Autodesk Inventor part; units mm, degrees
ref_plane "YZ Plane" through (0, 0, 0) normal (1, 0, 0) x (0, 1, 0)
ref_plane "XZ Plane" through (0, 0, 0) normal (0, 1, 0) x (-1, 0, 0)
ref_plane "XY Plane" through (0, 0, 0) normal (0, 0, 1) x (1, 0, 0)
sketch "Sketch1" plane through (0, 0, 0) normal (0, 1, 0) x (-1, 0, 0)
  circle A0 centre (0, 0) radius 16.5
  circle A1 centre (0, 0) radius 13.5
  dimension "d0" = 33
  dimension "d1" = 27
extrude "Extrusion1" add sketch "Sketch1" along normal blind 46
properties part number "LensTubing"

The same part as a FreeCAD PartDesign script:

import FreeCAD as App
import Part
import Sketcher
from FreeCAD import Vector
Q = App.Units.Quantity

doc = App.newDocument("Part")
body = doc.addObject("PartDesign::Body", "Body")

# Sketch on XZ plane
sketch1 = doc.addObject("Sketcher::SketchObject", "Sketch")
body.addObject(sketch1)
sketch1.AttachmentSupport = (doc.XZ_Plane, [""])
sketch1.MapMode = "FlatFace"
sketch1.addGeometry(Part.Circle(Vector(0, 0, 0), Vector(0, 0, 1), 16), False)
sketch1.addGeometry(Part.Circle(Vector(0, 0, 0), Vector(0, 0, 1), 14), False)
sketch1.addConstraint(Sketcher.Constraint("Coincident", 0, 3, -1, 1))
sketch1.addConstraint(Sketcher.Constraint("Coincident", 1, 3, -1, 1))
sketch1.addConstraint(Sketcher.Constraint("Diameter", 0, Q("33 mm")))
sketch1.addConstraint(Sketcher.Constraint("Diameter", 1, Q("27 mm")))
pad1 = doc.addObject("PartDesign::Pad", "Pad")
body.addObject(pad1)
pad1.Profile = sketch1
pad1.Length = 46
pad1.Reversed = True

doc.recompute()
